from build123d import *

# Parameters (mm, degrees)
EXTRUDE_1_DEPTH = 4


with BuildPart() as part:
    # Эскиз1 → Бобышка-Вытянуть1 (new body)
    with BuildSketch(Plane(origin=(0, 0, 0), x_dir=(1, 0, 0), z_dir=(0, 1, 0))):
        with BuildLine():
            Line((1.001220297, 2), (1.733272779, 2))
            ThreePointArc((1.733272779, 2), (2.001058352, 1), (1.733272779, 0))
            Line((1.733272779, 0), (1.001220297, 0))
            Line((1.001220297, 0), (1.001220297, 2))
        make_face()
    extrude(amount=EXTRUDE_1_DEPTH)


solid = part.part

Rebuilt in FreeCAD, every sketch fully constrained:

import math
import FreeCAD as App
import Part
import Sketcher

V = App.Vector

doc = App.newDocument("Part")
body = doc.addObject("PartDesign::Body", "Body")

sketch1 = doc.addObject("Sketcher::SketchObject", "Sketch")
body.addObject(sketch1)
sketch1.AttachmentSupport = (doc.XZ_Plane, [""])
sketch1.MapMode = "FlatFace"
sketch1.addGeometry([
    Part.LineSegment(V(1.733273, -2, 0), V(1.00122, -2, 0)),
    Part.LineSegment(V(1.00122, -2, 0), V(1.00122, 0, 0)),
    Part.LineSegment(V(1.00122, 0, 0), V(1.733273, 0, 0)),
    Part.ArcOfCircle(Part.Circle(V(0, -1, 0), V(0, 0, 1), 2.001058), math.radians(-29.982506), math.radians(29.982506)),
], False)
sketch1.addConstraint([
    Sketcher.Constraint("Coincident", 0, 2, 1, 1),
    Sketcher.Constraint("Coincident", 1, 2, 2, 1),
    Sketcher.Constraint("Coincident", 2, 2, 3, 2),
    Sketcher.Constraint("Coincident", 3, 1, 0, 1),
    Sketcher.Constraint("Horizontal", 0),
    Sketcher.Constraint("Vertical", 1),
    Sketcher.Constraint("Horizontal", 2),
    Sketcher.Constraint("PointOnObject", 3, 3, -2),
    Sketcher.Constraint("PointOnObject", 1, 2, -1),
    Sketcher.Constraint("Vertical", 2, 2, 3, 1),
    Sketcher.Constraint("DistanceY", 1, 1, 1, 2, 2.0),
    Sketcher.Constraint("Radius", 3, 2.001058),
    Sketcher.Constraint("DistanceX", 0, 2, 0, 1, 0.732052),
])
pad1 = doc.addObject("PartDesign::Pad", "Pad")
body.addObject(pad1)
pad1.Profile = sketch1
pad1.Length = 4
pad1.Reversed = True

doc.recompute()
